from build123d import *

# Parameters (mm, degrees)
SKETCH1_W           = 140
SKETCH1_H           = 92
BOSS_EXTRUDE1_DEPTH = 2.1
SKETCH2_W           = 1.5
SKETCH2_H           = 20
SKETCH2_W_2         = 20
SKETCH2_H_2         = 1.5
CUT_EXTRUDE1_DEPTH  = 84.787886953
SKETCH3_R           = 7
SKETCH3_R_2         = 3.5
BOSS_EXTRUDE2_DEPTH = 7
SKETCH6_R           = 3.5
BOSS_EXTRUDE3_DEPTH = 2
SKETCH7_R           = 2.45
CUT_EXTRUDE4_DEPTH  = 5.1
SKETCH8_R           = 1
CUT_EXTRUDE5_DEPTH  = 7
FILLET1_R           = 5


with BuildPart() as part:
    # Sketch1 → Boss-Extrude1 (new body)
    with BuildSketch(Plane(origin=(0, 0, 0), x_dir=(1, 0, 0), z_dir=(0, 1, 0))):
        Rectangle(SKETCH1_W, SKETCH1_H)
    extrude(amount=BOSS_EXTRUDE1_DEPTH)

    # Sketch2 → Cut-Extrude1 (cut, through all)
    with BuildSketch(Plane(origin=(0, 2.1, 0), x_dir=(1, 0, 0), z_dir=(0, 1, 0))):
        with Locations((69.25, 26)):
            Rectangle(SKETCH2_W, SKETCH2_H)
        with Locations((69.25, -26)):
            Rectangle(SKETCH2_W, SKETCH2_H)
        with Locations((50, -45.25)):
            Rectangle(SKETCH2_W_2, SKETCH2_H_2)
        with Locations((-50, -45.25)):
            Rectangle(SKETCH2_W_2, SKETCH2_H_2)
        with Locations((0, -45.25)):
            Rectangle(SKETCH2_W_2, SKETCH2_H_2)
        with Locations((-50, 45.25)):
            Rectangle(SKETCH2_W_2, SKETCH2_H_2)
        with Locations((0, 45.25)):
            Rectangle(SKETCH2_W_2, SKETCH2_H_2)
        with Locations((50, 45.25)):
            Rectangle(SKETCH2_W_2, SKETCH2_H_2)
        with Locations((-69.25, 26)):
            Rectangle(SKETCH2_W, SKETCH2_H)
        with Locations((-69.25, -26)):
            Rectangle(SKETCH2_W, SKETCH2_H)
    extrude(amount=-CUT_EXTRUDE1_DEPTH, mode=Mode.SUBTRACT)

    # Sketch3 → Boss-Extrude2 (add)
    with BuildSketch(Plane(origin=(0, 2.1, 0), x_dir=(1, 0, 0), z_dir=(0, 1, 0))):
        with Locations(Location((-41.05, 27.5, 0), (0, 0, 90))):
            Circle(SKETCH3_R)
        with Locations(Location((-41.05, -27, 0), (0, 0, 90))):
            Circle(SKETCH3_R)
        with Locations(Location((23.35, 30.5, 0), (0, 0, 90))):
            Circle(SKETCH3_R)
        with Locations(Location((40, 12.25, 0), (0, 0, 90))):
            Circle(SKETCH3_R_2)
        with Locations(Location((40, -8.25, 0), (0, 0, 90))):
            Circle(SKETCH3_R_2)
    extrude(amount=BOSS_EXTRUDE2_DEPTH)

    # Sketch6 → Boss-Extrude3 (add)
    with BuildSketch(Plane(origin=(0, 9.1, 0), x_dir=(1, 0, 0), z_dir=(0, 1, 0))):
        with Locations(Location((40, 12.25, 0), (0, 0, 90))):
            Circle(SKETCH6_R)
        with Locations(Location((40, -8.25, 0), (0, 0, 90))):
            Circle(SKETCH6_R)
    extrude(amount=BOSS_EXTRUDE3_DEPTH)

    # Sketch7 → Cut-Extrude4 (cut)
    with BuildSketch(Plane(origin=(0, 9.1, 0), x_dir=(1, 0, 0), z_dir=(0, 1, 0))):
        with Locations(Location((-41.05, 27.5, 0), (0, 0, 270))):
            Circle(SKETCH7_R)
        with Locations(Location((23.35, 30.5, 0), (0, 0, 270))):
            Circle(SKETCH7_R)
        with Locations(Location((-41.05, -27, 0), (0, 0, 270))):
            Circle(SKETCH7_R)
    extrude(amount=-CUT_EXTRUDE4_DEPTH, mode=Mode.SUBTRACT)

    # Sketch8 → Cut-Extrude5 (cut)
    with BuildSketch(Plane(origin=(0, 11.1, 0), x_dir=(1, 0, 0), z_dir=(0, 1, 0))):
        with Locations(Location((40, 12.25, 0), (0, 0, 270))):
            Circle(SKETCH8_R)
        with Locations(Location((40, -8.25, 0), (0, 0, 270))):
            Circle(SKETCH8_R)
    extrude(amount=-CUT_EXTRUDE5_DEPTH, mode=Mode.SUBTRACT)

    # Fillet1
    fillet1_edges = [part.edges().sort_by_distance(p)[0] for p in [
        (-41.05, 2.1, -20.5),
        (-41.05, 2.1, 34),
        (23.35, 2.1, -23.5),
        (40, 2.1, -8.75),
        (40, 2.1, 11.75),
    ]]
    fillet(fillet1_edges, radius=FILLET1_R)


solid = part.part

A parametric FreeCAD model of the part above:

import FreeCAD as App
import Part
import Sketcher
from FreeCAD import Vector


def edges_at(feature, points):
    """Names of the edges that pass closest to the given points."""
    edges = feature.Shape.Edges
    near = lambda p: min(range(len(edges)), key=lambda i: edges[i].distToShape(Part.Vertex(*p))[0])
    return sorted({f"Edge{near(p) + 1}" for p in points})


def add_polygon(sketch, points):
    """Adds a closed chain of lines whose ends are joined by coincident constraints."""
    first, n = sketch.GeometryCount, len(points)
    for a, b in zip(points, points[1:] + points[:1]):
        sketch.addGeometry(Part.LineSegment(App.Vector(*a, 0), App.Vector(*b, 0)), False)
    for i in range(n):
        sketch.addConstraint(Sketcher.Constraint("Coincident", first + i, 2, first + (i + 1) % n, 1))

doc = App.newDocument("Part")
body = doc.addObject("PartDesign::Body", "Body")

# Sketch on XZ plane
sketch1 = body.newObject("Sketcher::SketchObject", "Sketch")
sketch1.AttachmentSupport = (doc.getObject("XZ_Plane"), [""])
sketch1.MapMode = "FlatFace"
add_polygon(sketch1, [(-70, -46), (-70, 46), (70, 46), (70, -46)])  # lines 0-3
sketch1.addConstraint([
    Sketcher.Constraint("Vertical", 0),
    Sketcher.Constraint("Horizontal", 1),
    Sketcher.Constraint("Vertical", 2),
    Sketcher.Constraint("Horizontal", 3),
    Sketcher.Constraint("Symmetric", 0, 2, 2, 2, -1, 1),
    Sketcher.Constraint("DistanceX", 1, 1, 1, 2, 140.0),
    Sketcher.Constraint("DistanceY", 0, 1, 0, 2, 92.0),
])
pad1 = body.newObject("PartDesign::Pad", "Pad")
pad1.Profile = sketch1
pad1.Length = 2.1
pad1.Reversed = True

# Sketch on XZ plane
sketch2 = body.newObject("Sketcher::SketchObject", "Sketch001")
sketch2.AttachmentSupport = (doc.getObject("XZ_Plane"), [""])
sketch2.MapMode = "FlatFace"
sketch2.AttachmentOffset = App.Placement(Vector(0, 0, -2.1), App.Rotation())
add_polygon(sketch2, [(68.5, -36), (68.5, -16), (70, -16), (70, -36)])  # lines 0-3
add_polygon(sketch2, [(68.5, 16), (68.5, 36), (70, 36), (70, 16)])  # lines 4-7
add_polygon(sketch2, [(40, 44.5), (40, 46), (60, 46), (60, 44.5)])  # lines 8-11
add_polygon(sketch2, [(-60, 44.5), (-60, 46), (-40, 46), (-40, 44.5)])  # lines 12-15
add_polygon(sketch2, [(-10, 44.5), (-10, 46), (10, 46), (10, 44.5)])  # lines 16-19
add_polygon(sketch2, [(-60, -46), (-60, -44.5), (-40, -44.5), (-40, -46)])  # lines 20-23
add_polygon(sketch2, [(-10, -46), (-10, -44.5), (10, -44.5), (10, -46)])  # lines 24-27
add_polygon(sketch2, [(40, -46), (40, -44.5), (60, -44.5), (60, -46)])  # lines 28-31
add_polygon(sketch2, [(-70, -36), (-70, -16), (-68.5, -16), (-68.5, -36)])  # lines 32-35
add_polygon(sketch2, [(-70, 16), (-70, 36), (-68.5, 36), (-68.5, 16)])  # lines 36-39
sketch2.addConstraint([
    Sketcher.Constraint("Vertical", 0),
    Sketcher.Constraint("Horizontal", 1),
    Sketcher.Constraint("Vertical", 2),
    Sketcher.Constraint("Horizontal", 3),
    Sketcher.Constraint("Vertical", 4),
    Sketcher.Constraint("Horizontal", 5),
    Sketcher.Constraint("Vertical", 6),
    Sketcher.Constraint("Horizontal", 7),
    Sketcher.Constraint("Vertical", 8),
    Sketcher.Constraint("Horizontal", 9),
    Sketcher.Constraint("Vertical", 10),
    Sketcher.Constraint("Horizontal", 11),
    Sketcher.Constraint("Vertical", 12),
    Sketcher.Constraint("Horizontal", 13),
    Sketcher.Constraint("Vertical", 14),
    Sketcher.Constraint("Horizontal", 15),
    Sketcher.Constraint("Vertical", 16),
    Sketcher.Constraint("Horizontal", 17),
    Sketcher.Constraint("Vertical", 18),
    Sketcher.Constraint("Horizontal", 19),
    Sketcher.Constraint("Vertical", 20),
    Sketcher.Constraint("Horizontal", 21),
    Sketcher.Constraint("Vertical", 22),
    Sketcher.Constraint("Horizontal", 23),
    Sketcher.Constraint("Vertical", 24),
    Sketcher.Constraint("Horizontal", 25),
    Sketcher.Constraint("Vertical", 26),
    Sketcher.Constraint("Horizontal", 27),
    Sketcher.Constraint("Vertical", 28),
    Sketcher.Constraint("Horizontal", 29),
    Sketcher.Constraint("Vertical", 30),
    Sketcher.Constraint("Horizontal", 31),
    Sketcher.Constraint("Vertical", 32),
    Sketcher.Constraint("Horizontal", 33),
    Sketcher.Constraint("Vertical", 34),
    Sketcher.Constraint("Horizontal", 35),
    Sketcher.Constraint("Vertical", 36),
    Sketcher.Constraint("Horizontal", 37),
    Sketcher.Constraint("Vertical", 38),
    Sketcher.Constraint("Horizontal", 39),
    Sketcher.Constraint("Symmetric", 10, 2, 20, 2, -1, 1),
    Sketcher.Constraint("Symmetric", 8, 2, 22, 2, -1, 1),
    Sketcher.Constraint("Symmetric", 18, 2, 24, 2, -1, 1),
    Sketcher.Constraint("Symmetric", 16, 2, 26, 2, -1, 1),
    Sketcher.Constraint("Symmetric", 14, 2, 28, 2, -1, 1),
    Sketcher.Constraint("Symmetric", 12, 2, 30, 2, -1, 1),
    Sketcher.Constraint("Symmetric", 6, 2, 32, 2, -1, 1),
    Sketcher.Constraint("Symmetric", 4, 2, 34, 2, -1, 1),
    Sketcher.Constraint("Symmetric", 2, 2, 36, 2, -1, 1),
    Sketcher.Constraint("Symmetric", 0, 2, 38, 2, -1, 1),
    Sketcher.Constraint("Symmetric", 9, 2, 12, 2, -2),
    Sketcher.Constraint("Symmetric", 11, 2, 14, 2, -2),
    Sketcher.Constraint("Symmetric", 1, 2, 32, 2, -2),
    Sketcher.Constraint("Symmetric", 3, 2, 34, 2, -2),
    Sketcher.Constraint("Horizontal", 13, 2, 16, 2),
    Sketcher.Constraint("Horizontal", 15, 2, 18, 2),
    Sketcher.Constraint("Vertical", 19, 2, 24, 2),
    Sketcher.Constraint("Equal", 15, 17),
    Sketcher.Constraint("Equal", 31, 0),
    Sketcher.Constraint("Equal", 39, 8),
    Sketcher.Constraint("DistanceX", 9, 1, 9, 2, 20.0),
    Sketcher.Constraint("DistanceX", 1, 1, 1, 2, 1.5),
    Sketcher.Constraint("DistanceY", 0, 2, -1, 1, 16.0),
    Sketcher.Constraint("DistanceX", -1, 1, 1, 2, 70.0),
    Sketcher.Constraint("DistanceX", -1, 1, 8, 2, 40.0),
    Sketcher.Constraint("DistanceY", -1, 1, 8, 2, 46.0),
])
pocket1 = body.newObject("PartDesign::Pocket", "Pocket")
pocket1.Profile = sketch2
pocket1.Type = "ThroughAll"
pocket1.Reversed = True

# Sketch on XZ plane
sketch3 = body.newObject("Sketcher::SketchObject", "Sketch002")
sketch3.AttachmentSupport = (doc.getObject("XZ_Plane"), [""])
sketch3.MapMode = "FlatFace"
sketch3.AttachmentOffset = App.Placement(Vector(0, 0, -2.1), App.Rotation())
sketch3.addGeometry([
    Part.Circle(Vector(-41, -27.5, 0), Vector(0, 0, 1), 7),  # 0
    Part.Circle(Vector(-41, 27, 0), Vector(0, 0, 1), 7),  # 1
    Part.Circle(Vector(23.4, -30.5, 0), Vector(0, 0, 1), 7),  # 2
    Part.Circle(Vector(40, -12.2, 0), Vector(0, 0, 1), 3.5),  # 3
    Part.Circle(Vector(40, 8.2, 0), Vector(0, 0, 1), 3.5),  # 4
], False)
sketch3.addConstraint([
    Sketcher.Constraint("Equal", 0, 1),
    Sketcher.Constraint("Equal", 1, 2),
    Sketcher.Constraint("Equal", 3, 4),
    Sketcher.Constraint("Vertical", 0, 3, 1, 3),
    Sketcher.Constraint("Vertical", 3, 3, 4, 3),
    Sketcher.Constraint("Diameter", 0, 14.0),
    Sketcher.Constraint("Diameter", 3, 7.0),
    Sketcher.Constraint("DistanceY", -1, 1, 1, 3, 27.0),
    Sketcher.Constraint("DistanceX", -1, 1, 3, 3, 40.0),
    Sketcher.Constraint("DistanceY", 2, 3, 0, 3, 3.0),
    Sketcher.Constraint("DistanceY", 0, 3, -1, 1, 27.5),
    Sketcher.Constraint("DistanceX", 0, 3, 2, 3, 64.4),
    Sketcher.Constraint("DistanceY", 3, 3, 4, 3, 20.5),
    Sketcher.Constraint("DistanceX", 0, 3, -1, 1, 41.05),
    Sketcher.Constraint("DistanceY", 3, 3, -1, 1, 12.25),
])
pad2 = body.newObject("PartDesign::Pad", "Pad001")
pad2.Profile = sketch3
pad2.Length = 7
pad2.Reversed = True

# Sketch on XZ plane
sketch4 = body.newObject("Sketcher::SketchObject", "Sketch003")
sketch4.AttachmentSupport = (doc.getObject("XZ_Plane"), [""])
sketch4.MapMode = "FlatFace"
sketch4.AttachmentOffset = App.Placement(Vector(0, 0, -9.1), App.Rotation())
sketch4.addGeometry([
    Part.Circle(Vector(40, -12.2, 0), Vector(0, 0, 1), 3.5),
    Part.Circle(Vector(40, 8.2, 0), Vector(0, 0, 1), 3.5),
], False)
sketch4.addConstraint([
    Sketcher.Constraint("Equal", 0, 1),
    Sketcher.Constraint("Vertical", 0, 3, 1, 3),
    Sketcher.Constraint("Diameter", 0, 7.0),
    Sketcher.Constraint("DistanceX", -1, 1, 0, 3, 40.0),
    Sketcher.Constraint("DistanceY", 0, 3, 1, 3, 20.5),
    Sketcher.Constraint("DistanceY", 0, 3, -1, 1, 12.25),
])
pad3 = body.newObject("PartDesign::Pad", "Pad002")
pad3.Profile = sketch4
pad3.Length = 2
pad3.Reversed = True

# Sketch on XZ plane
sketch5 = body.newObject("Sketcher::SketchObject", "Sketch004")
sketch5.AttachmentSupport = (doc.getObject("XZ_Plane"), [""])
sketch5.MapMode = "FlatFace"
sketch5.AttachmentOffset = App.Placement(Vector(0, 0, -9.1), App.Rotation())
sketch5.addGeometry([
    Part.Circle(Vector(-41, -27.5, 0), Vector(0, 0, 1), 2.5),
    Part.Circle(Vector(23.4, -30.5, 0), Vector(0, 0, 1), 2.5),
    Part.Circle(Vector(-41, 27, 0), Vector(0, 0, 1), 2.5),
], False)
sketch5.addConstraint([
    Sketcher.Constraint("Equal", 0, 1),
    Sketcher.Constraint("Equal", 1, 2),
    Sketcher.Constraint("Vertical", 0, 3, 2, 3),
    Sketcher.Constraint("Diameter", 0, 4.9),
    Sketcher.Constraint("DistanceY", -1, 1, 2, 3, 27.0),
    Sketcher.Constraint("DistanceY", 1, 3, 0, 3, 3.0),
    Sketcher.Constraint("DistanceY", 0, 3, -1, 1, 27.5),
    Sketcher.Constraint("DistanceX", 0, 3, 1, 3, 64.4),
    Sketcher.Constraint("DistanceX", 0, 3, -1, 1, 41.05),
])
pocket2 = body.newObject("PartDesign::Pocket", "Pocket001")
pocket2.Profile = sketch5
pocket2.Length = 5.1
pocket2.Reversed = True

# Sketch on XZ plane
sketch6 = body.newObject("Sketcher::SketchObject", "Sketch005")
sketch6.AttachmentSupport = (doc.getObject("XZ_Plane"), [""])
sketch6.MapMode = "FlatFace"
sketch6.AttachmentOffset = App.Placement(Vector(0, 0, -11.1), App.Rotation())
sketch6.addGeometry([
    Part.Circle(Vector(40, -12.2, 0), Vector(0, 0, 1), 1),
    Part.Circle(Vector(40, 8.2, 0), Vector(0, 0, 1), 1),
], False)
sketch6.addConstraint([
    Sketcher.Constraint("Equal", 0, 1),
    Sketcher.Constraint("Vertical", 0, 3, 1, 3),
    Sketcher.Constraint("Diameter", 0, 2.0),
    Sketcher.Constraint("DistanceX", -1, 1, 0, 3, 40.0),
    Sketcher.Constraint("DistanceY", 0, 3, 1, 3, 20.5),
    Sketcher.Constraint("DistanceY", 0, 3, -1, 1, 12.25),
])
pocket3 = body.newObject("PartDesign::Pocket", "Pocket002")
pocket3.Profile = sketch6
pocket3.Length = 7
pocket3.Reversed = True
doc.recompute()

fillet = body.newObject("PartDesign::Fillet", "Fillet")
fillet.Base = (pocket3, edges_at(pocket3, [
    (-41.05, 2.1, -20.5),
    (-41.05, 2.1, 34),
    (23.35, 2.1, -23.5),
    (40, 2.1, -8.75),
    (40, 2.1, 11.75),
]))
fillet.Radius = 5

doc.recompute()
